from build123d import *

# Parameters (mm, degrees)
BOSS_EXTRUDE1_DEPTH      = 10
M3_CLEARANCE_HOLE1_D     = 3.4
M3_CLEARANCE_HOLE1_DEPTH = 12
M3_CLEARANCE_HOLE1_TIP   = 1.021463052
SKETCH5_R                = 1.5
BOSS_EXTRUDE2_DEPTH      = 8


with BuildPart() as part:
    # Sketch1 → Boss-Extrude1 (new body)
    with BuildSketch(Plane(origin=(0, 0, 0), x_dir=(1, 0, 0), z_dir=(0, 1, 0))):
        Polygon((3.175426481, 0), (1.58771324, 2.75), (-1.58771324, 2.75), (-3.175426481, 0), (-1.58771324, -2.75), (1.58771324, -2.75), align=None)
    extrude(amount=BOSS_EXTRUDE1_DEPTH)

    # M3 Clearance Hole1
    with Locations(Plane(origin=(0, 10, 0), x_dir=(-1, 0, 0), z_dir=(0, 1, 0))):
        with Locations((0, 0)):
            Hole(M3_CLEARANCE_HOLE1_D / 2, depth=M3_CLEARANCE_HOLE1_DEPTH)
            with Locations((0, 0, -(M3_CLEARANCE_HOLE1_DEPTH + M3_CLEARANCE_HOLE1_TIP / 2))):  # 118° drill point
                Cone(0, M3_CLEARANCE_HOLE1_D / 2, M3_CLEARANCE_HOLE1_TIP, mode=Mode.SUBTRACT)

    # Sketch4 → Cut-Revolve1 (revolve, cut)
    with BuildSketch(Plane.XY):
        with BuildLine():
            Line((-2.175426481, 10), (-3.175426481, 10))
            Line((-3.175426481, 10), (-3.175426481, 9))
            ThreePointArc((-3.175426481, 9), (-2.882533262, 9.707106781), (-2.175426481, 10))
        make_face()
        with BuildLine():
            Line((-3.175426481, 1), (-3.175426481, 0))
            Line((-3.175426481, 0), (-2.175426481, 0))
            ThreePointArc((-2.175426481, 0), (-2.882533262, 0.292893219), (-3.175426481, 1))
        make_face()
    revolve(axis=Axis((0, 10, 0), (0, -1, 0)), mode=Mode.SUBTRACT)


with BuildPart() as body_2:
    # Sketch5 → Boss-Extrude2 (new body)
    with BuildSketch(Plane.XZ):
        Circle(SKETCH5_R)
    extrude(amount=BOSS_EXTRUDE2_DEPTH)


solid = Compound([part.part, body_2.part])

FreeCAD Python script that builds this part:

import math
import FreeCAD as App
import Part
import Sketcher

V = App.Vector
Q = App.Units.Quantity


def add_polygon(sketch, points):
    """Adds a closed chain of lines whose ends are joined by coincident constraints."""
    first, n = sketch.GeometryCount, len(points)
    for a, b in zip(points, points[1:] + points[:1]):
        sketch.addGeometry(Part.LineSegment(App.Vector(*a, 0), App.Vector(*b, 0)), False)
    for i in range(n):
        sketch.addConstraint(Sketcher.Constraint("Coincident", first + i, 2, first + (i + 1) % n, 1))

doc = App.newDocument("Part")
params = doc.addObject("Spreadsheet::Sheet", "Params")
for row, (alias, value) in enumerate([
    ("pad1_length", "10 mm"),
    ("sketch2_diameter", "3.4 mm"),
    ("hole_diameter", "3.4 mm"),
    ("hole_depth", "12 mm"),
    ("sketch3_radius", "1 mm"),
    ("groove_angle", "360 deg"),
    ("sketch4_diameter", "3 mm"),
    ("pad2_length", "8 mm"),
], start=1):
    params.set(f"A{row}", alias)
    params.set(f"B{row}", "=" + value)
    params.setAlias(f"B{row}", alias)

body = doc.addObject("PartDesign::Body", "Body")

sketch1 = body.newObject("Sketcher::SketchObject", "Sketch")
sketch1.AttachmentSupport = (doc.getObject("XZ_Plane"), [""])
sketch1.MapMode = "FlatFace"
add_polygon(sketch1, [(3.175426, 0), (1.587713, -2.75), (-1.587713, -2.75), (-3.175426, 0), (-1.587713, 2.75), (1.587713, 2.75)])
sketch1.addConstraint([
    Sketcher.Constraint("Horizontal", 1),
    Sketcher.Constraint("Horizontal", 4),
    Sketcher.Constraint("Symmetric", 0, 2, 3, 2, -1, 1),
    Sketcher.Constraint("Symmetric", 2, 2, 5, 2, -1, 1),
    Sketcher.Constraint("PointOnObject", 2, 2, -1),
    Sketcher.Constraint("Parallel", 2, 5),
    Sketcher.Constraint("Vertical", 1, 2, 3, 2),
    Sketcher.Constraint("Angle", 0, Q("-120 deg")),
    Sketcher.Constraint("DistanceY", 1, 2, 3, 2, 5.5),
    Sketcher.Constraint("DistanceX", 1, 2, 1, 1, 3.175426),
])
pad1 = body.newObject("PartDesign::Pad", "Pad")
pad1.Profile = sketch1
pad1.setExpression("Length", "Params.pad1_length")
pad1.Reversed = True

sketch2 = body.newObject("Sketcher::SketchObject", "Sketch001")
sketch2.AttachmentSupport = (doc.getObject("XZ_Plane"), [""])
sketch2.MapMode = "FlatFace"
sketch2.AttachmentOffset = App.Placement(V(0, 0, -10), App.Rotation())
sketch2.addGeometry(Part.Circle(V(0, 0, 0), V(0, 0, 1), 1.7), False)
sketch2.addConstraint([
    Sketcher.Constraint("Coincident", 0, 3, -1, 1),
    Sketcher.Constraint("Diameter", 0, 3.4),
])
sketch2.setExpression("Constraints[1]", "Params.sketch2_diameter")
doc.recompute()
hole = body.newObject("PartDesign::Hole", "Hole")
hole.Profile = sketch2
hole.ThreadType = "None"
hole.setExpression("Diameter", "Params.hole_diameter")
hole.DepthType = "Dimension"
hole.setExpression("Depth", "Params.hole_depth")
hole.DrillPoint = "Angled"
hole.DrillPointAngle = 118
hole.Reversed = True

sketch3 = body.newObject("Sketcher::SketchObject", "Sketch002")
sketch3.AttachmentSupport = (doc.getObject("XY_Plane"), [""])
sketch3.MapMode = "FlatFace"
sketch3.addGeometry([
    Part.LineSegment(V(-2.175426, 10, 0), V(-3.175426, 10, 0)),
    Part.LineSegment(V(-3.175426, 10, 0), V(-3.175426, 9, 0)),
    Part.ArcOfCircle(Part.Circle(V(-2.175426, 9, 0), V(0, 0, 1), 1), math.radians(90), math.radians(180)),
    Part.LineSegment(V(-3.175426, 1, 0), V(-3.175426, 0, 0)),
    Part.LineSegment(V(-3.175426, 0, 0), V(-2.175426, 0, 0)),
    Part.ArcOfCircle(Part.Circle(V(-2.175426, 1, 0), V(0, 0, 1), 1), math.radians(-180), math.radians(-90)),
], False)
sketch3.addConstraint([
    Sketcher.Constraint("Coincident", 0, 2, 1, 1),
    Sketcher.Constraint("Tangent", 1, 2, 2, 2),
    Sketcher.Constraint("Tangent", 2, 1, 0, 1),
    Sketcher.Constraint("Coincident", 3, 2, 4, 1),
    Sketcher.Constraint("Tangent", 4, 2, 5, 2),
    Sketcher.Constraint("Tangent", 5, 1, 3, 1),
    Sketcher.Constraint("Horizontal", 0),
    Sketcher.Constraint("Vertical", 1),
    Sketcher.Constraint("Vertical", 3),
    Sketcher.Constraint("Horizontal", 4),
    Sketcher.Constraint("Equal", 2, 5),
    Sketcher.Constraint("PointOnObject", 3, 2, -1),
    Sketcher.Constraint("Vertical", 2, 3, 5, 3),
    Sketcher.Constraint("Radius", 2, 1.0),
    Sketcher.Constraint("DistanceY", -1, 1, 2, 3, 9.0),
    Sketcher.Constraint("DistanceX", 2, 3, -1, 1, 2.175426),
])
sketch3.setExpression("Constraints[13]", "Params.sketch3_radius")
groove = body.newObject("PartDesign::Groove", "Groove")
groove.Profile = sketch3
groove.ReferenceAxis = (sketch3, ["V_Axis"])
groove.setExpression("Angle", "Params.groove_angle")
body2 = doc.addObject("PartDesign::Body", "Body001")

sketch4 = body2.newObject("Sketcher::SketchObject", "Sketch003")
sketch4.AttachmentSupport = (doc.getObject("XZ_Plane001"), [""])
sketch4.MapMode = "FlatFace"
sketch4.addGeometry(Part.Circle(V(0, 0, 0), V(0, 0, 1), 1.5), False)
sketch4.addConstraint([
    Sketcher.Constraint("Coincident", 0, 3, -1, 1),
    Sketcher.Constraint("Diameter", 0, 3.0),
])
sketch4.setExpression("Constraints[1]", "Params.sketch4_diameter")
pad2 = body2.newObject("PartDesign::Pad", "Pad001")
pad2.Profile = sketch4
pad2.setExpression("Length", "Params.pad2_length")

doc.recompute()
